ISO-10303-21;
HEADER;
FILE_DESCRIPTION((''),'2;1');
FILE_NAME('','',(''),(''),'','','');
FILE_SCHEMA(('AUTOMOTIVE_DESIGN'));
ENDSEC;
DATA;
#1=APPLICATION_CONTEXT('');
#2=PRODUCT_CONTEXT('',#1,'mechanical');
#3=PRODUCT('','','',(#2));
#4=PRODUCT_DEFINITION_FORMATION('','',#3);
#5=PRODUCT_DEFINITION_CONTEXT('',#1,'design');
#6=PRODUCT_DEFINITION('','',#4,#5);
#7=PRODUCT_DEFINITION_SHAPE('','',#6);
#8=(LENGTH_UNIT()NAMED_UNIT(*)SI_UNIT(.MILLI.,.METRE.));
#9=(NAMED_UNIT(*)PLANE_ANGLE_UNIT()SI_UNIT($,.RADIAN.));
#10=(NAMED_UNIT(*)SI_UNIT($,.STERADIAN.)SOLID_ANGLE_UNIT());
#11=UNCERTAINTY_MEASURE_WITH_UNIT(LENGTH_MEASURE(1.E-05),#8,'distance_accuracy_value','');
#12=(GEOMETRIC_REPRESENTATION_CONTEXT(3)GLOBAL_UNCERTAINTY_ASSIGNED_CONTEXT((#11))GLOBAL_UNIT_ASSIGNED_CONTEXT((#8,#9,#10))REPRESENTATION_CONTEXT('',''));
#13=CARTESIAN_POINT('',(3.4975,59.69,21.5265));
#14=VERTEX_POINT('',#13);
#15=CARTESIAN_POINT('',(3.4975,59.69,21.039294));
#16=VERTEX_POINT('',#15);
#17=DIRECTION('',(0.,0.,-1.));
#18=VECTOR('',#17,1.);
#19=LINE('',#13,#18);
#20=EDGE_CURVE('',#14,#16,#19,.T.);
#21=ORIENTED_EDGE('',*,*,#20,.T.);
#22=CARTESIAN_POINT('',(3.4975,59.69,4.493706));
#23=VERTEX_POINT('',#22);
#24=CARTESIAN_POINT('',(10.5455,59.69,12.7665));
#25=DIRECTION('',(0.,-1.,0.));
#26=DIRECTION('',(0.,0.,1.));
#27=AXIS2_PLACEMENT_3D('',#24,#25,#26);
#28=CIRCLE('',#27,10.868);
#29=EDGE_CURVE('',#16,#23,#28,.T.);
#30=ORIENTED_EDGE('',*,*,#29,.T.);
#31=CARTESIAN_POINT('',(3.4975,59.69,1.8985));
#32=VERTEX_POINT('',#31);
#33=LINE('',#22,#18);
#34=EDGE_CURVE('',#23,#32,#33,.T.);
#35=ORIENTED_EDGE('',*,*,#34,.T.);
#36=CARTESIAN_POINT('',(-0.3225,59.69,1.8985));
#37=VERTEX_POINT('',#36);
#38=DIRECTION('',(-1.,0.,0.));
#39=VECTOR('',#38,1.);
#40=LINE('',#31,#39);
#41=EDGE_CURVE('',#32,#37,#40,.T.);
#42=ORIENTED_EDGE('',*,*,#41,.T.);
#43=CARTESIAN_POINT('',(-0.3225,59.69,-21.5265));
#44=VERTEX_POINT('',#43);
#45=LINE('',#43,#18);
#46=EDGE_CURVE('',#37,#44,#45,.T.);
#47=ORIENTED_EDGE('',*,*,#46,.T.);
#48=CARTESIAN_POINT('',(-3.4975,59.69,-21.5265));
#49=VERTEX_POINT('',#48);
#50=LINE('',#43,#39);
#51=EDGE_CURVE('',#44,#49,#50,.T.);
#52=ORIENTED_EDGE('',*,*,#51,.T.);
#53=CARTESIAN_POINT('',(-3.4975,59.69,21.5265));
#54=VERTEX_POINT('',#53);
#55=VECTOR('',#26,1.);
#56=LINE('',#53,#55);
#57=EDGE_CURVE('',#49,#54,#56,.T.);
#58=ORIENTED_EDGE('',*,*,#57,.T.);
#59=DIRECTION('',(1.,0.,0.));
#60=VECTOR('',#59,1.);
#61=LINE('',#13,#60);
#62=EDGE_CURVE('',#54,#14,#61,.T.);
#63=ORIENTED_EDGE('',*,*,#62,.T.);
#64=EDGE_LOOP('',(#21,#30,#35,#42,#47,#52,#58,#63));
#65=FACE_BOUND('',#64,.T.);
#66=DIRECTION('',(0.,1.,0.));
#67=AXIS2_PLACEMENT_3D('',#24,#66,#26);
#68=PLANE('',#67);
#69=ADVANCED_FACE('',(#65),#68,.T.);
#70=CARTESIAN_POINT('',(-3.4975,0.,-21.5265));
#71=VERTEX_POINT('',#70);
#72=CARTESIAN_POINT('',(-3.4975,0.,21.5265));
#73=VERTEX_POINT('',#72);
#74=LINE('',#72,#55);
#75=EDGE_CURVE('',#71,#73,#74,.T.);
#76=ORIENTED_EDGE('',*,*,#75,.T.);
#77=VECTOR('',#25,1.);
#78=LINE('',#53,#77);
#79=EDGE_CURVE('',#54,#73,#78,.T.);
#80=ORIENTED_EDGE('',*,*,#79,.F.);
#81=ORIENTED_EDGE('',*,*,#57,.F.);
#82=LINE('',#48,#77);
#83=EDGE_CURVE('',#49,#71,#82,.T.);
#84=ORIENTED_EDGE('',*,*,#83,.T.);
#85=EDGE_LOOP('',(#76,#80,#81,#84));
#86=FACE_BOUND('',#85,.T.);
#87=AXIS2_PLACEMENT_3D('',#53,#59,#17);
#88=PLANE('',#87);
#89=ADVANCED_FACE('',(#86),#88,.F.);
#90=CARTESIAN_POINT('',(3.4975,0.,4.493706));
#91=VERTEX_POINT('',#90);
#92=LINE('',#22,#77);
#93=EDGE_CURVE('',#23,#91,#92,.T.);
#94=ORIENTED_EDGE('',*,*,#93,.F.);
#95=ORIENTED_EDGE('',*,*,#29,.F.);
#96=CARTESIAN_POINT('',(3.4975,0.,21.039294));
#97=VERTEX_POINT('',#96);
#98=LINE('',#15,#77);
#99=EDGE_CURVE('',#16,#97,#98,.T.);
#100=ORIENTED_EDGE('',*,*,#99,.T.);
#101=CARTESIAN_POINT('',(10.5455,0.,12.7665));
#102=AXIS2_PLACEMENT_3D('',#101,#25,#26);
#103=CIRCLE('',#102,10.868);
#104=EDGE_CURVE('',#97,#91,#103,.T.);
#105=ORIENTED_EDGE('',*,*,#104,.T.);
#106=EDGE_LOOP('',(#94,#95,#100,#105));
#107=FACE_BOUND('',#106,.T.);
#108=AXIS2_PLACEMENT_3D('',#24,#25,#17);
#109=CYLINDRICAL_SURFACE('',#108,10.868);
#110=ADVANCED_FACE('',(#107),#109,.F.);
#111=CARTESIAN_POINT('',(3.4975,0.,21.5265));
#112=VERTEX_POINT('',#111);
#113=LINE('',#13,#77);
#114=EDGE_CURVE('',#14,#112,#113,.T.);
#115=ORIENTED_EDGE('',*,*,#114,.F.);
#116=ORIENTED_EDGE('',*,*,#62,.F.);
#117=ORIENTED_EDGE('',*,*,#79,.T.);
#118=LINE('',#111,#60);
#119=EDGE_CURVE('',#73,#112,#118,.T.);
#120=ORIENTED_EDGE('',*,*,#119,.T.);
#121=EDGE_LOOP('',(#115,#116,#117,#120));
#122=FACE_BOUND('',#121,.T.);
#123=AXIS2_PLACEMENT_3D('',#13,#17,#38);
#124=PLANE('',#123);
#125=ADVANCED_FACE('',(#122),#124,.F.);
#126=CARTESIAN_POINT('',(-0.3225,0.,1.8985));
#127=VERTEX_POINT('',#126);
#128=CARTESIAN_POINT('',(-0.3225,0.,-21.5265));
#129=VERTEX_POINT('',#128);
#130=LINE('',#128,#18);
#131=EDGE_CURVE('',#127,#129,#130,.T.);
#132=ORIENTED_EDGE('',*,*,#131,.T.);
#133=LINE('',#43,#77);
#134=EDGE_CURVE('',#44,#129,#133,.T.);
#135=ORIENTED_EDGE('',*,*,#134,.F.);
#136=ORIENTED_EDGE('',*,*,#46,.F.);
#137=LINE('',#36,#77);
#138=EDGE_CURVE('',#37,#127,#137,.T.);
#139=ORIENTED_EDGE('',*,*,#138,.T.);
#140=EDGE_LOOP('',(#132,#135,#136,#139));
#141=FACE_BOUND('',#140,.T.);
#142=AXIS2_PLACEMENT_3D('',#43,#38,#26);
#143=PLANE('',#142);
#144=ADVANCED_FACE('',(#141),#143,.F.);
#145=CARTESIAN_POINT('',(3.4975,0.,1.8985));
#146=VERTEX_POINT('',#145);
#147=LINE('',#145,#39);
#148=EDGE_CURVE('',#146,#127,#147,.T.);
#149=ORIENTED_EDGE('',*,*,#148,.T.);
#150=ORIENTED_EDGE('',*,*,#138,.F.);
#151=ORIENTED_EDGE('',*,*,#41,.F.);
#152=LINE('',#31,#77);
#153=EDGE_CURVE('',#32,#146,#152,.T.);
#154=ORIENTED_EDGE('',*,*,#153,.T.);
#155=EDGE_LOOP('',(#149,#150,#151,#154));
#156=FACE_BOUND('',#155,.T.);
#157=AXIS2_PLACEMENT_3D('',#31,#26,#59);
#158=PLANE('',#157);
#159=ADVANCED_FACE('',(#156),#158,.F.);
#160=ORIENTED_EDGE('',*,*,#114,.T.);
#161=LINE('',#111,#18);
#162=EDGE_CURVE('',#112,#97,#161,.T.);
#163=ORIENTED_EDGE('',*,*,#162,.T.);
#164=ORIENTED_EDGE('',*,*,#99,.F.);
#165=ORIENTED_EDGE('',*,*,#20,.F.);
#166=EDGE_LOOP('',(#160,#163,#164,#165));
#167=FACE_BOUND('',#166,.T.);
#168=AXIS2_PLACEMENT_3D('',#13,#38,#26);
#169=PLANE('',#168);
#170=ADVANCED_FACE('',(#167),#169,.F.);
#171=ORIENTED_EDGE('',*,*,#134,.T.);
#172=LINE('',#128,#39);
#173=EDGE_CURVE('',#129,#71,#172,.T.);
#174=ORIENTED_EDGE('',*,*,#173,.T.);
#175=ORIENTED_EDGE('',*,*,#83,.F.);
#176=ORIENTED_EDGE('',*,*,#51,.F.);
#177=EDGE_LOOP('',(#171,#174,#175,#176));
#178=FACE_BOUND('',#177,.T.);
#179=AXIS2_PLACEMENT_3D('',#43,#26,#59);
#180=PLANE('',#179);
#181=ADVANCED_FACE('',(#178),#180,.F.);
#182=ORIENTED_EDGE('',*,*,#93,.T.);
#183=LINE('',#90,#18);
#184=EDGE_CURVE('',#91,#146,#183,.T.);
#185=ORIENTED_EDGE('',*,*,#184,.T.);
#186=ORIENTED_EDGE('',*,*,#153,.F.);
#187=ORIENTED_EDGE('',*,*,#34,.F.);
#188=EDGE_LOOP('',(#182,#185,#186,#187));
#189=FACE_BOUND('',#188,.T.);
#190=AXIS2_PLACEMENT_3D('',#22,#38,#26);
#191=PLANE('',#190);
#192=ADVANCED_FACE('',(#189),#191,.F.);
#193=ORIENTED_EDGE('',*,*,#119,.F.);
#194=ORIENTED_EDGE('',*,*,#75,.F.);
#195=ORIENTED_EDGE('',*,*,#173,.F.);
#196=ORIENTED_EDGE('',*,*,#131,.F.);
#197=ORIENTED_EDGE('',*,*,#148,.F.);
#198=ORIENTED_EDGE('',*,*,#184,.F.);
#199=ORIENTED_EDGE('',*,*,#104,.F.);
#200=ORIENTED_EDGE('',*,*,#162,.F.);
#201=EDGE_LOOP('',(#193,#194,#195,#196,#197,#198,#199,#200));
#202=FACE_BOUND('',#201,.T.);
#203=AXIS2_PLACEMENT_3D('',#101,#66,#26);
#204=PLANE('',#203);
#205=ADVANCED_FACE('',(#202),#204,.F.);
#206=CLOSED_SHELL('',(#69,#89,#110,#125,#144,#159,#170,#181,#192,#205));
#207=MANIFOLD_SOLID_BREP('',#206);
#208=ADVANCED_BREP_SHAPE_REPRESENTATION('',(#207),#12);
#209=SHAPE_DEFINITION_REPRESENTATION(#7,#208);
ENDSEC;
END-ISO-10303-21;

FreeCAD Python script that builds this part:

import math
import FreeCAD as App
import Part
import Sketcher

V = App.Vector
Q = App.Units.Quantity

doc = App.newDocument("Part")
params = doc.addObject("Spreadsheet::Sheet", "Params")
for row, (alias, value) in enumerate([
    ("sketch1_width", "0.125 in"),
    ("sketch1_height", "1.695 in"),
    ("pad1_length", "2.35 in"),
], start=1):
    params.set(f"A{row}", alias)
    params.set(f"B{row}", "=" + value)
    params.setAlias(f"B{row}", alias)

body = doc.addObject("PartDesign::Body", "Body")

# Sketch on XZ plane
sketch1 = doc.addObject("Sketcher::SketchObject", "Sketch")
body.addObject(sketch1)
sketch1.AttachmentSupport = (doc.XZ_Plane, [""])
sketch1.MapMode = "FlatFace"
sketch1.addGeometry([
    Part.LineSegment(V(-3.5, 21.53, 0), V(3.5, 21.53, 0)),  # 0
    Part.LineSegment(V(3.5, 21.53, 0), V(3.5, 21.04, 0)),  # 1
    Part.ArcOfCircle(Part.Circle(V(10.55, 12.77, 0), V(0, 0, 1), 10.87), math.radians(130), math.radians(230)),  # 2
    Part.LineSegment(V(3.5, 4.49, 0), V(3.5, 1.9, 0)),  # 3
    Part.LineSegment(V(3.5, 1.9, 0), V(-0.32, 1.9, 0)),  # 4
    Part.LineSegment(V(-0.32, 1.9, 0), V(-0.32, -21.53, 0)),  # 5
    Part.LineSegment(V(-0.32, -21.53, 0), V(-3.5, -21.53, 0)),  # 6
    Part.LineSegment(V(-3.5, -21.53, 0), V(-3.5, 21.53, 0)),  # 7
], False)
sketch1.addConstraint([
    Sketcher.Constraint("Coincident", 0, 2, 1, 1),
    Sketcher.Constraint("Coincident", 1, 2, 2, 1),
    Sketcher.Constraint("Coincident", 2, 2, 3, 1),
    Sketcher.Constraint("Coincident", 3, 2, 4, 1),
    Sketcher.Constraint("Coincident", 4, 2, 5, 1),
    Sketcher.Constraint("Coincident", 5, 2, 6, 1),
    Sketcher.Constraint("Coincident", 6, 2, 7, 1),
    Sketcher.Constraint("Coincident", 7, 2, 0, 1),
    Sketcher.Constraint("Horizontal", 0),
    Sketcher.Constraint("Vertical", 1),
    Sketcher.Constraint("Vertical", 3),
    Sketcher.Constraint("Horizontal", 4),
    Sketcher.Constraint("Vertical", 5),
    Sketcher.Constraint("Horizontal", 6),
    Sketcher.Constraint("Vertical", 7),
    Sketcher.Constraint("Symmetric", 0, 2, 6, 2, -1, 1),
    Sketcher.Constraint("Vertical", 1, 2, 2, 2),
    Sketcher.Constraint("DistanceX", 6, 2, 6, 1, Q("0.125 in")),
    Sketcher.Constraint("DistanceY", 7, 1, 7, 2, Q("1.695 in")),
    Sketcher.Constraint("Radius", 2, 10.868),
    Sketcher.Constraint("DistanceX", 0, 1, 0, 2, 6.995),
    Sketcher.Constraint("DistanceY", 5, 2, 5, 1, 23.425),
    Sketcher.Constraint("DistanceX", -1, 1, 2, 3, 10.5455),
    Sketcher.Constraint("DistanceY", -1, 1, 2, 3, 12.7665),
])
sketch1.setExpression("Constraints[17]", "Params.sketch1_width")
sketch1.setExpression("Constraints[18]", "Params.sketch1_height")
pad1 = doc.addObject("PartDesign::Pad", "Pad")
body.addObject(pad1)
pad1.Profile = sketch1
pad1.setExpression("Length", "Params.pad1_length")
pad1.Reversed = True

doc.recompute()
